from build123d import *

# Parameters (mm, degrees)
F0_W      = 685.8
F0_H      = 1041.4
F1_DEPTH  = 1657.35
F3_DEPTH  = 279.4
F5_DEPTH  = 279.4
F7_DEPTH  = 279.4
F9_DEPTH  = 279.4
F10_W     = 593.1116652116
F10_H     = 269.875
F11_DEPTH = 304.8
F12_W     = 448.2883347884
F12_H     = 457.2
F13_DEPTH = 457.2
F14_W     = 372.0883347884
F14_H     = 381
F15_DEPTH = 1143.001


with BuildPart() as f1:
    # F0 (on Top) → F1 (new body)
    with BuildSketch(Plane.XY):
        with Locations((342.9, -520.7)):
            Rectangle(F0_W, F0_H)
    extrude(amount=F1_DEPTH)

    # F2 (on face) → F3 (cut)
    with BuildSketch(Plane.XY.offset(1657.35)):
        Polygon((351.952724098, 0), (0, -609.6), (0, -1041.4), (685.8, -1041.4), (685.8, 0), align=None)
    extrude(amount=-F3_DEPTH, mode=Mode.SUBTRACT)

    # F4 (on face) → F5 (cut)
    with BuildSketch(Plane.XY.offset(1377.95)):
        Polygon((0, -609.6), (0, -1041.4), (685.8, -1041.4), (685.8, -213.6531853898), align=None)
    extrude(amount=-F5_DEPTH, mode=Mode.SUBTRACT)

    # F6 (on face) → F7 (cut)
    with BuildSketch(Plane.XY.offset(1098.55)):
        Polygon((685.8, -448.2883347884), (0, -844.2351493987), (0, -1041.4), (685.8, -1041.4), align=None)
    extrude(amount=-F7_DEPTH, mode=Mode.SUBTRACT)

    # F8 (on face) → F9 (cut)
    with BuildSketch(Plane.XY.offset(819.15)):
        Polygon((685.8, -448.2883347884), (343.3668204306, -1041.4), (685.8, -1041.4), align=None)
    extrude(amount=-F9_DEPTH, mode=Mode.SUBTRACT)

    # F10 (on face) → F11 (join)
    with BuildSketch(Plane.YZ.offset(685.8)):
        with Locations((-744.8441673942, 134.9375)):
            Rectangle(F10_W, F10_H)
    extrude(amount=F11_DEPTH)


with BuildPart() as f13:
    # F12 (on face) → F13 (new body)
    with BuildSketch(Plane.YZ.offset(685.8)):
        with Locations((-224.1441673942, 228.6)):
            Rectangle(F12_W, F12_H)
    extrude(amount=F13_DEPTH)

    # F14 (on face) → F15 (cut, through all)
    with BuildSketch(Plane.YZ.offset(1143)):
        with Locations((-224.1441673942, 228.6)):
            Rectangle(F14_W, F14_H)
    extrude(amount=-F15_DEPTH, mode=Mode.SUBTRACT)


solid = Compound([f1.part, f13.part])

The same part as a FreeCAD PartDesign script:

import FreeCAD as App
import Part
import Sketcher
Q = App.Units.Quantity


def add_polygon(sketch, points):
    """Adds a closed chain of lines whose ends are joined by coincident constraints."""
    first, n = sketch.GeometryCount, len(points)
    for a, b in zip(points, points[1:] + points[:1]):
        sketch.addGeometry(Part.LineSegment(App.Vector(*a, 0), App.Vector(*b, 0)), False)
    for i in range(n):
        sketch.addConstraint(Sketcher.Constraint("Coincident", first + i, 2, first + (i + 1) % n, 1))

doc = App.newDocument("Part")
params = doc.addObject("Spreadsheet::Sheet", "Params")
for row, (alias, value) in enumerate([
    ("sketch1_width", "27 in"),
    ("sketch1_height", "41 in"),
    ("pad1_length", "65.25 in"),
    ("sketch2_width", "27 in"),
    ("sketch2_height", "17 in"),
    ("sketch2_height2", "41 in"),
    ("pocket1_length", "11 in"),
    ("sketch3_width", "27 in"),
    ("sketch3_height", "17 in"),
    ("pocket2_length", "11 in"),
    ("sketch4_width", "27 in"),
    ("pocket3_length", "11 in"),
    ("pocket4_length", "11 in"),
    ("sketch6_height", "10.625 in"),
    ("pad2_length", "12 in"),
    ("sketch7_height", "18 in"),
    ("pad3_length", "18 in"),
    ("sketch8_height", "15 in"),
], start=1):
    params.set(f"A{row}", alias)
    params.set(f"B{row}", "=" + value)
    params.setAlias(f"B{row}", alias)

body = doc.addObject("PartDesign::Body", "Body")

# Sketch on XY plane
sketch1 = body.newObject("Sketcher::SketchObject", "Sketch")
sketch1.AttachmentSupport = (doc.getObject("XY_Plane"), [""])
sketch1.MapMode = "FlatFace"
add_polygon(sketch1, [(0, 0), (0, -1041), (686, -1041), (686, 0)])  # lines 0-3
sketch1.addConstraint([
    Sketcher.Constraint("Vertical", 0),
    Sketcher.Constraint("Horizontal", 1),
    Sketcher.Constraint("Vertical", 2),
    Sketcher.Constraint("Horizontal", 3),
    Sketcher.Constraint("Coincident", 3, 2, -1, 1),
    Sketcher.Constraint("DistanceX", 1, 1, 1, 2, Q("27 in")),
    Sketcher.Constraint("DistanceY", 0, 2, 0, 1, Q("41 in")),
])
sketch1.setExpression("Constraints[9]", "Params.sketch1_width")
sketch1.setExpression("Constraints[10]", "Params.sketch1_height")
pad1 = body.newObject("PartDesign::Pad", "Pad")
pad1.Profile = sketch1
pad1.setExpression("Length", "Params.pad1_length")

# Sketch on XY plane
sketch2 = body.newObject("Sketcher::SketchObject", "Sketch001")
sketch2.AttachmentSupport = (doc.getObject("XY_Plane"), [""])
sketch2.MapMode = "FlatFace"
sketch2.AttachmentOffset = App.Placement(App.Vector(0, 0, 65.25 * 25.4), App.Rotation())
add_polygon(sketch2, [(352, 0), (0, -610), (0, -1041), (686, -1041), (686, 0)])  # lines 0-4
sketch2.addConstraint([
    Sketcher.Constraint("Vertical", 1),
    Sketcher.Constraint("Horizontal", 2),
    Sketcher.Constraint("Vertical", 3),
    Sketcher.Constraint("Horizontal", 4),
    Sketcher.Constraint("PointOnObject", 0, 2, -2),
    Sketcher.Constraint("PointOnObject", 3, 2, -1),
    Sketcher.Constraint("DistanceX", 2, 1, 2, 2, Q("27 in")),
    Sketcher.Constraint("DistanceY", 1, 2, 1, 1, Q("17 in")),
    Sketcher.Constraint("DistanceY", 3, 1, 3, 2, Q("41 in")),
    Sketcher.Constraint("Angle", 0, Q("-120 deg")),
])
sketch2.setExpression("Constraints[11]", "Params.sketch2_width")
sketch2.setExpression("Constraints[12]", "Params.sketch2_height")
sketch2.setExpression("Constraints[13]", "Params.sketch2_height2")
pocket1 = body.newObject("PartDesign::Pocket", "Pocket")
pocket1.Profile = sketch2
pocket1.setExpression("Length", "Params.pocket1_length")

# Sketch on XY plane
sketch3 = body.newObject("Sketcher::SketchObject", "Sketch002")
sketch3.AttachmentSupport = (doc.getObject("XY_Plane"), [""])
sketch3.MapMode = "FlatFace"
sketch3.AttachmentOffset = App.Placement(App.Vector(0, 0, 54.25 * 25.4), App.Rotation())
add_polygon(sketch3, [(0, -610), (0, -1041), (686, -1041), (686, -214)])  # lines 0-3
sketch3.addConstraint([
    Sketcher.Constraint("Vertical", 0),
    Sketcher.Constraint("Horizontal", 1),
    Sketcher.Constraint("Vertical", 2),
    Sketcher.Constraint("PointOnObject", 0, 2, -2),
    Sketcher.Constraint("DistanceX", 1, 1, 1, 2, Q("27 in")),
    Sketcher.Constraint("DistanceY", 0, 2, 0, 1, Q("17 in")),
    Sketcher.Constraint("DistanceY", 0, 2, -1, 1, Q("41 in")),
    Sketcher.Constraint("Angle", 3, Q("-150 deg")),
])
sketch3.setExpression("Constraints[8]", "Params.sketch3_width")
sketch3.setExpression("Constraints[9]", "Params.sketch3_height")
pocket2 = body.newObject("PartDesign::Pocket", "Pocket001")
pocket2.Profile = sketch3
pocket2.setExpression("Length", "Params.pocket2_length")

# Sketch on XY plane
sketch4 = body.newObject("Sketcher::SketchObject", "Sketch003")
sketch4.AttachmentSupport = (doc.getObject("XY_Plane"), [""])
sketch4.MapMode = "FlatFace"
sketch4.AttachmentOffset = App.Placement(App.Vector(0, 0, 43.25 * 25.4), App.Rotation())
add_polygon(sketch4, [(686, -448), (0, -844), (0, -1041), (686, -1041)])  # lines 0-3
sketch4.addConstraint([
    Sketcher.Constraint("Vertical", 1),
    Sketcher.Constraint("Horizontal", 2),
    Sketcher.Constraint("Vertical", 3),
    Sketcher.Constraint("PointOnObject", 0, 2, -2),
    Sketcher.Constraint("DistanceX", 2, 1, 2, 2, Q("27 in")),
    Sketcher.Constraint("DistanceY", 1, 2, -1, 1, Q("41 in")),
    Sketcher.Constraint("Angle", 0, Q("-150 deg")),
    Sketcher.Constraint("DistanceY", 1, 2, 1, 1, Q("197.164851 mm")),
])
sketch4.setExpression("Constraints[8]", "Params.sketch4_width")
pocket3 = body.newObject("PartDesign::Pocket", "Pocket002")
pocket3.Profile = sketch4
pocket3.setExpression("Length", "Params.pocket3_length")

# Sketch on XY plane
sketch5 = body.newObject("Sketcher::SketchObject", "Sketch004")
sketch5.AttachmentSupport = (doc.getObject("XY_Plane"), [""])
sketch5.MapMode = "FlatFace"
sketch5.AttachmentOffset = App.Placement(App.Vector(0, 0, 32.25 * 25.4), App.Rotation())
add_polygon(sketch5, [(686, -448), (343, -1041), (686, -1041)])  # lines 0-2
sketch5.addConstraint([
    Sketcher.Constraint("Horizontal", 1),
    Sketcher.Constraint("Vertical", 2),
    Sketcher.Constraint("DistanceY", 0, 2, -1, 1, Q("41 in")),
    Sketcher.Constraint("DistanceX", -1, 1, 1, 2, Q("27 in")),
    Sketcher.Constraint("Angle", 0, Q("-120 deg")),
    Sketcher.Constraint("DistanceX", 1, 1, 1, 2, Q("342.43318 mm")),
])
pocket4 = body.newObject("PartDesign::Pocket", "Pocket003")
pocket4.Profile = sketch5
pocket4.setExpression("Length", "Params.pocket4_length")

# Sketch on YZ plane
sketch6 = body.newObject("Sketcher::SketchObject", "Sketch005")
sketch6.AttachmentSupport = (doc.getObject("YZ_Plane"), [""])
sketch6.MapMode = "FlatFace"
sketch6.AttachmentOffset = App.Placement(App.Vector(0, 0, 27 * 25.4), App.Rotation())
add_polygon(sketch6, [(-1041, 270), (-1041, 0), (-448, 0), (-448, 270)])  # lines 0-3
sketch6.addConstraint([
    Sketcher.Constraint("Vertical", 0),
    Sketcher.Constraint("Horizontal", 1),
    Sketcher.Constraint("Vertical", 2),
    Sketcher.Constraint("Horizontal", 3),
    Sketcher.Constraint("PointOnObject", 0, 2, -1),
    Sketcher.Constraint("DistanceX", 0, 2, -1, 1, Q("41 in")),
    Sketcher.Constraint("DistanceY", 0, 2, 0, 1, Q("10.625 in")),
    Sketcher.Constraint("DistanceX", 1, 1, 1, 2, Q("593.111665 mm")),
])
sketch6.setExpression("Constraints[10]", "Params.sketch6_height")
pad2 = body.newObject("PartDesign::Pad", "Pad001")
pad2.Profile = sketch6
pad2.setExpression("Length", "Params.pad2_length")
body2 = doc.addObject("PartDesign::Body", "Body001")

# Sketch on YZ plane
sketch7 = body2.newObject("Sketcher::SketchObject", "Sketch006")
sketch7.AttachmentSupport = (doc.getObject("YZ_Plane001"), [""])
sketch7.MapMode = "FlatFace"
sketch7.AttachmentOffset = App.Placement(App.Vector(0, 0, 27 * 25.4), App.Rotation())
add_polygon(sketch7, [(-448, 457), (-448, 0), (0, 0), (0, 457)])  # lines 0-3
sketch7.addConstraint([
    Sketcher.Constraint("Vertical", 0),
    Sketcher.Constraint("Horizontal", 1),
    Sketcher.Constraint("Vertical", 2),
    Sketcher.Constraint("Horizontal", 3),
    Sketcher.Constraint("Coincident", 1, 2, -1, 1),
    Sketcher.Constraint("DistanceY", 0, 2, 0, 1, Q("18 in")),
    Sketcher.Constraint("DistanceX", 1, 1, 1, 2, Q("448.288335 mm")),
])
sketch7.setExpression("Constraints[9]", "Params.sketch7_height")
pad3 = body2.newObject("PartDesign::Pad", "Pad002")
pad3.Profile = sketch7
pad3.setExpression("Length", "Params.pad3_length")

# Sketch on YZ plane
sketch8 = body2.newObject("Sketcher::SketchObject", "Sketch007")
sketch8.AttachmentSupport = (doc.getObject("YZ_Plane001"), [""])
sketch8.MapMode = "FlatFace"
sketch8.AttachmentOffset = App.Placement(App.Vector(0, 0, 45 * 25.4), App.Rotation())
add_polygon(sketch8, [(-410, 419), (-410, 38), (-38, 38), (-38, 419)])  # lines 0-3
sketch8.addConstraint([
    Sketcher.Constraint("Vertical", 0),
    Sketcher.Constraint("Horizontal", 1),
    Sketcher.Constraint("Vertical", 2),
    Sketcher.Constraint("Horizontal", 3),
    Sketcher.Constraint("DistanceY", 0, 2, 0, 1, Q("15 in")),
    Sketcher.Constraint("DistanceY", -1, 1, 0, 2, Q("1.5 in")),
    Sketcher.Constraint("DistanceX", 1, 2, -1, 1, Q("1.5 in")),
    Sketcher.Constraint("DistanceX", 1, 1, 1, 2, Q("372.088335 mm")),
])
sketch8.setExpression("Constraints[8]", "Params.sketch8_height")
pocket5 = body2.newObject("PartDesign::Pocket", "Pocket004")
pocket5.Profile = sketch8
pocket5.Type = "ThroughAll"

doc.recompute()
